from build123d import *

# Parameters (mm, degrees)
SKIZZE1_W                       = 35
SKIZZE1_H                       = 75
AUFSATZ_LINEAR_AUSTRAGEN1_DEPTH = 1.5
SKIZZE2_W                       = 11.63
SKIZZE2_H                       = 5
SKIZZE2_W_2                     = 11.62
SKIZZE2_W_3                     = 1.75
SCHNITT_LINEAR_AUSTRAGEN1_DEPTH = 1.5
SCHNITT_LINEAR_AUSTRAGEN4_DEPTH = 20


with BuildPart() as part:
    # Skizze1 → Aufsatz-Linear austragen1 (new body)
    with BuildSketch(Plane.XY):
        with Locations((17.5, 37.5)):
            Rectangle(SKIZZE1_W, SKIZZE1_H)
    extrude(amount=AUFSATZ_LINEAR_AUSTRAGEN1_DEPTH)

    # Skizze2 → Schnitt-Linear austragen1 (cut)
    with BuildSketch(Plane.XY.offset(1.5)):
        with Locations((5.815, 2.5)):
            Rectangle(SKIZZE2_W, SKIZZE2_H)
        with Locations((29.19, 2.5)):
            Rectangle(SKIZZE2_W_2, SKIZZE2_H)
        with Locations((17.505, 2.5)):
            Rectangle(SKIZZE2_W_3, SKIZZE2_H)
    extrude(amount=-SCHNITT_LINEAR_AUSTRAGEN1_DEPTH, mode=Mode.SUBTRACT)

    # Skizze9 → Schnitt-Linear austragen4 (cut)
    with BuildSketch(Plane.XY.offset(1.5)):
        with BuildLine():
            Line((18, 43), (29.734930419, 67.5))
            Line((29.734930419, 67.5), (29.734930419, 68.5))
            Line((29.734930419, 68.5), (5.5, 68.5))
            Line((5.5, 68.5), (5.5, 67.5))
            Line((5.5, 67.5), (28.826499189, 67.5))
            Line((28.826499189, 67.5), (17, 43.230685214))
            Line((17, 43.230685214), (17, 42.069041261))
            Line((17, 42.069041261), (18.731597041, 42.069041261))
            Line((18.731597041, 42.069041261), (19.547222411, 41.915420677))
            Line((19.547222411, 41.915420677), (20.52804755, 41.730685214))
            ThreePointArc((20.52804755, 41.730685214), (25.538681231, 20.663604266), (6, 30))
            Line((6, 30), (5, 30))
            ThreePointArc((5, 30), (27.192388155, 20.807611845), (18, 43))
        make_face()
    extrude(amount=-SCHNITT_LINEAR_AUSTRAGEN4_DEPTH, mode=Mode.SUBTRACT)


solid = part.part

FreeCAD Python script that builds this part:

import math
import FreeCAD as App
import Part
import Sketcher
from FreeCAD import Vector


def add_polygon(sketch, points):
    """Adds a closed chain of lines whose ends are joined by coincident constraints."""
    first, n = sketch.GeometryCount, len(points)
    for a, b in zip(points, points[1:] + points[:1]):
        sketch.addGeometry(Part.LineSegment(App.Vector(*a, 0), App.Vector(*b, 0)), False)
    for i in range(n):
        sketch.addConstraint(Sketcher.Constraint("Coincident", first + i, 2, first + (i + 1) % n, 1))

doc = App.newDocument("Part")
body = doc.addObject("PartDesign::Body", "Body")

# Sketch on XY plane
sketch1 = body.newObject("Sketcher::SketchObject", "Sketch")
sketch1.AttachmentSupport = (doc.getObject("XY_Plane"), [""])
sketch1.MapMode = "FlatFace"
add_polygon(sketch1, [(0, 75), (0, 0), (35, 0), (35, 75)])  # lines 0-3
sketch1.addConstraint([
    Sketcher.Constraint("Vertical", 0),
    Sketcher.Constraint("Horizontal", 1),
    Sketcher.Constraint("Vertical", 2),
    Sketcher.Constraint("Horizontal", 3),
    Sketcher.Constraint("Coincident", 0, 2, -1, 1),
    Sketcher.Constraint("DistanceX", 1, 1, 1, 2, 35.0),
    Sketcher.Constraint("DistanceY", 0, 2, 0, 1, 75.0),
])
pad1 = body.newObject("PartDesign::Pad", "Pad")
pad1.Profile = sketch1
pad1.Length = 1.5

# Sketch on XY plane
sketch2 = body.newObject("Sketcher::SketchObject", "Sketch001")
sketch2.AttachmentSupport = (doc.getObject("XY_Plane"), [""])
sketch2.MapMode = "FlatFace"
sketch2.AttachmentOffset = App.Placement(Vector(0, 0, 1.5), App.Rotation())
add_polygon(sketch2, [(0, 5), (0, 0), (11.63, 0), (11.63, 5)])  # lines 0-3
add_polygon(sketch2, [(23.38, 5), (23.38, 0), (35, 0), (35, 5)])  # lines 4-7
add_polygon(sketch2, [(16.63, 5), (16.63, 0), (18.38, 0), (18.38, 5)])  # lines 8-11
sketch2.addConstraint([
    Sketcher.Constraint("Vertical", 0),
    Sketcher.Constraint("Horizontal", 1),
    Sketcher.Constraint("Vertical", 2),
    Sketcher.Constraint("Horizontal", 3),
    Sketcher.Constraint("Vertical", 4),
    Sketcher.Constraint("Horizontal", 5),
    Sketcher.Constraint("Vertical", 6),
    Sketcher.Constraint("Horizontal", 7),
    Sketcher.Constraint("Vertical", 8),
    Sketcher.Constraint("Horizontal", 9),
    Sketcher.Constraint("Vertical", 10),
    Sketcher.Constraint("Horizontal", 11),
    Sketcher.Constraint("Coincident", 0, 2, -1, 1),
    Sketcher.Constraint("PointOnObject", 4, 2, -1),
    Sketcher.Constraint("PointOnObject", 8, 2, -1),
    Sketcher.Constraint("Horizontal", 3, 2, 6, 2),
    Sketcher.Constraint("Horizontal", 7, 2, 10, 2),
    Sketcher.Constraint("DistanceY", 0, 2, 0, 1, 5.0),
    Sketcher.Constraint("DistanceX", -1, 1, 5, 2, 35.0),
    Sketcher.Constraint("DistanceX", 1, 2, 8, 2, 5.0),
    Sketcher.Constraint("DistanceX", 9, 2, 4, 2, 5.0),
    Sketcher.Constraint("DistanceX", 1, 1, 1, 2, 11.63),
    Sketcher.Constraint("DistanceX", 5, 1, 5, 2, 11.62),
])
pocket1 = body.newObject("PartDesign::Pocket", "Pocket")
pocket1.Profile = sketch2
pocket1.Length = 1.5

# Sketch on XY plane
sketch3 = body.newObject("Sketcher::SketchObject", "Sketch002")
sketch3.AttachmentSupport = (doc.getObject("XY_Plane"), [""])
sketch3.MapMode = "FlatFace"
sketch3.AttachmentOffset = App.Placement(Vector(0, 0, 1.5), App.Rotation())
sketch3.addGeometry([
    Part.LineSegment(Vector(18, 43, 0), Vector(29.73493, 67.5, 0)),  # 0
    Part.LineSegment(Vector(29.73493, 67.5, 0), Vector(29.73493, 68.5, 0)),  # 1
    Part.LineSegment(Vector(29.73493, 68.5, 0), Vector(5.5, 68.5, 0)),  # 2
    Part.LineSegment(Vector(5.5, 68.5, 0), Vector(5.5, 67.5, 0)),  # 3
    Part.LineSegment(Vector(5.5, 67.5, 0), Vector(28.826499, 67.5, 0)),  # 4
    Part.LineSegment(Vector(28.826499, 67.5, 0), Vector(17, 43.230685, 0)),  # 5
    Part.LineSegment(Vector(17, 43.230685, 0), Vector(17, 42.069041, 0)),  # 6
    Part.LineSegment(Vector(17, 42.069041, 0), Vector(18.731597, 42.069041, 0)),  # 7
    Part.LineSegment(Vector(18.731597, 42.069041, 0), Vector(19.547222, 41.915421, 0)),  # 8
    Part.LineSegment(Vector(19.547222, 41.915421, 0), Vector(20.528048, 41.730685, 0)),  # 9
    Part.ArcOfCircle(Part.Circle(Vector(18, 30, 0), Vector(0, 0, 1), 12), math.radians(180), math.radians(437.838344)),  # 10
    Part.LineSegment(Vector(6, 30, 0), Vector(5, 30, 0)),  # 11
    Part.ArcOfCircle(Part.Circle(Vector(18, 30, 0), Vector(0, 0, 1), 13), math.radians(180), math.radians(450)),  # 12
], False)
sketch3.addConstraint([
    Sketcher.Constraint("Coincident", 0, 2, 1, 1),
    Sketcher.Constraint("Coincident", 1, 2, 2, 1),
    Sketcher.Constraint("Coincident", 2, 2, 3, 1),
    Sketcher.Constraint("Coincident", 3, 2, 4, 1),
    Sketcher.Constraint("Coincident", 4, 2, 5, 1),
    Sketcher.Constraint("Coincident", 5, 2, 6, 1),
    Sketcher.Constraint("Coincident", 6, 2, 7, 1),
    Sketcher.Constraint("Coincident", 7, 2, 8, 1),
    Sketcher.Constraint("Coincident", 8, 2, 9, 1),
    Sketcher.Constraint("Coincident", 9, 2, 10, 2),
    Sketcher.Constraint("Coincident", 10, 1, 11, 1),
    Sketcher.Constraint("Coincident", 11, 2, 12, 1),
    Sketcher.Constraint("Coincident", 12, 2, 0, 1),
    Sketcher.Constraint("Vertical", 1),
    Sketcher.Constraint("Horizontal", 2),
    Sketcher.Constraint("Vertical", 3),
    Sketcher.Constraint("Horizontal", 4),
    Sketcher.Constraint("Vertical", 6),
    Sketcher.Constraint("Horizontal", 7),
    Sketcher.Constraint("Horizontal", 11),
    Sketcher.Constraint("Coincident", 12, 3, 10, 3),
    Sketcher.Constraint("Parallel", 8, 9),
    Sketcher.Constraint("Horizontal", 0, 2, 3, 2),
    Sketcher.Constraint("Horizontal", 12, 3, 10, 1),
    Sketcher.Constraint("Vertical", 10, 3, 12, 2),
    Sketcher.Constraint("Equal", 11, 1),
    Sketcher.Constraint("Radius", 10, 12.0),
    Sketcher.Constraint("Radius", 12, 13.0),
    Sketcher.Constraint("DistanceX", -1, 1, 10, 3, 18.0),
    Sketcher.Constraint("DistanceY", -1, 1, 10, 3, 30.0),
    Sketcher.Constraint("DistanceX", -1, 1, 5, 2, 17.0),
    Sketcher.Constraint("DistanceY", -1, 1, 0, 2, 67.5),
    Sketcher.Constraint("DistanceX", -1, 1, 2, 2, 5.5),
    Sketcher.Constraint("DistanceY", 9, 2, 5, 2, 1.5),
    Sketcher.Constraint("DistanceX", 4, 1, 4, 2, 23.326499),
    Sketcher.Constraint("DistanceX", 2, 2, 2, 1, 24.23493),
    Sketcher.Constraint("Distance", 9, 0.998071),
    Sketcher.Constraint("DistanceX", 7, 1, 7, 2, 1.731597),
    Sketcher.Constraint("DistanceY", 6, 2, 6, 1, 1.161644),
    Sketcher.Constraint("DistanceY", -1, 1, 6, 2, 42.069041),
])
pocket2 = body.newObject("PartDesign::Pocket", "Pocket001")
pocket2.Profile = sketch3
pocket2.Length = 20

doc.recompute()
